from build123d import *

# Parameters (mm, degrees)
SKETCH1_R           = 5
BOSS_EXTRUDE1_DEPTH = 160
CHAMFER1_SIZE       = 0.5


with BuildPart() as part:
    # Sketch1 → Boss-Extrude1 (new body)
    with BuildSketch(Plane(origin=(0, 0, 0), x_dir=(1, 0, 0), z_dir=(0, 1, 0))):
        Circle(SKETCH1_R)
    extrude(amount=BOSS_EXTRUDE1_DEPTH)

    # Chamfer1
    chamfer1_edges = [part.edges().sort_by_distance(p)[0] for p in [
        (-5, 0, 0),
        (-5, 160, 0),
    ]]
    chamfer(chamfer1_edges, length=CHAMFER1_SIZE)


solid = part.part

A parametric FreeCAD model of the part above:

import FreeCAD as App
import Part
import Sketcher
Q = App.Units.Quantity


def edges_at(feature, points):
    """Names of the edges that pass closest to the given points."""
    edges = feature.Shape.Edges
    near = lambda p: min(range(len(edges)), key=lambda i: edges[i].distToShape(Part.Vertex(*p))[0])
    return sorted({f"Edge{near(p) + 1}" for p in points})

doc = App.newDocument("Part")
params = doc.addObject("Spreadsheet::Sheet", "Params")
for row, (alias, value) in enumerate([
    ("sketch1_diameter", "10 mm"),
    ("pad1_length", "160 mm"),
    ("chamfer_size", "0.5 mm"),
], start=1):
    params.set(f"A{row}", alias)
    params.set(f"B{row}", "=" + value)
    params.setAlias(f"B{row}", alias)

body = doc.addObject("PartDesign::Body", "Body")

sketch1 = doc.addObject("Sketcher::SketchObject", "Sketch")
body.addObject(sketch1)
sketch1.AttachmentSupport = (doc.XZ_Plane, [""])
sketch1.MapMode = "FlatFace"
sketch1.addGeometry(Part.Circle(App.Vector(0, 0, 0), App.Vector(0, 0, 1), 5), False)
sketch1.addConstraint([
    Sketcher.Constraint("Coincident", 0, 3, -1, 1),
    Sketcher.Constraint("Diameter", 0, Q("10 mm")),
])
sketch1.setExpression("Constraints[1]", "Params.sketch1_diameter")
pad1 = doc.addObject("PartDesign::Pad", "Pad")
body.addObject(pad1)
pad1.Profile = sketch1
pad1.setExpression("Length", "Params.pad1_length")
pad1.Reversed = True
doc.recompute()

chamfer = doc.addObject("PartDesign::Chamfer", "Chamfer")
body.addObject(chamfer)
chamfer.Base = (pad1, edges_at(pad1, [(-5, 0, 0), (-5, 160, 0)]))
chamfer.setExpression("Size", "Params.chamfer_size")

doc.recompute()
